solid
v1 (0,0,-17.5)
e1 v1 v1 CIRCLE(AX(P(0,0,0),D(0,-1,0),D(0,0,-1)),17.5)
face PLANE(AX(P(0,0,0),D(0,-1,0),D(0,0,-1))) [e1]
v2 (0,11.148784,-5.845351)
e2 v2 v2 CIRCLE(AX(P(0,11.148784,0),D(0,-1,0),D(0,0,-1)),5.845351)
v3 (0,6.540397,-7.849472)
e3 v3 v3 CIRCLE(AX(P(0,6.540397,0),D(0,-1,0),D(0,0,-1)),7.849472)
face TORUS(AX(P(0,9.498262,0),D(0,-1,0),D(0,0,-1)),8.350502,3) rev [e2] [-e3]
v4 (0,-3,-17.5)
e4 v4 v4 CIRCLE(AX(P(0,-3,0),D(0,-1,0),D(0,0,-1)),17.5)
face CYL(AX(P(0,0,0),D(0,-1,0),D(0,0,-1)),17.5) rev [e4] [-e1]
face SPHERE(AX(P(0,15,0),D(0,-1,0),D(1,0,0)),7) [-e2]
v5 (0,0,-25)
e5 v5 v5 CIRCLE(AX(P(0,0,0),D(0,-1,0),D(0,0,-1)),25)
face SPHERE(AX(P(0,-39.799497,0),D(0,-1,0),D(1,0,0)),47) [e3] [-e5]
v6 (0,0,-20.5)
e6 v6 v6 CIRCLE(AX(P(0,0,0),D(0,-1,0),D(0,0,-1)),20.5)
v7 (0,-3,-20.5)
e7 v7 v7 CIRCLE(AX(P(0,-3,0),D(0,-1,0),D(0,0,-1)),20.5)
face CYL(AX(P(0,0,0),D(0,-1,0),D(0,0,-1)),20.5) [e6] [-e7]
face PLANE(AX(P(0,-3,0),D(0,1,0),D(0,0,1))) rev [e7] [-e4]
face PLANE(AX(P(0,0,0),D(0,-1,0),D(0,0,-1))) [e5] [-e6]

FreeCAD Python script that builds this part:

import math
import FreeCAD as App
import Part
import Sketcher

V = App.Vector

doc = App.newDocument("Part")
body = doc.addObject("PartDesign::Body", "Body")

# Sketch on XY plane
sketch1 = body.newObject("Sketcher::SketchObject", "Sketch")
sketch1.AttachmentSupport = (doc.getObject("XY_Plane"), [""])
sketch1.MapMode = "FlatFace"
sketch1.addGeometry(Part.LineSegment(V(0, 22, 0), V(0, 0, 0)), False)
sketch1.addGeometry(Part.LineSegment(V(0, 0, 0), V(17.5, 0, 0)), False)
sketch1.addGeometry(Part.LineSegment(V(17.5, 0, 0), V(17.5, -3, 0)), False)
sketch1.addGeometry(Part.LineSegment(V(17.5, -3, 0), V(20.5, -3, 0)), False)
sketch1.addGeometry(Part.LineSegment(V(20.5, -3, 0), V(20.5, 0, 0)), False)
sketch1.addGeometry(Part.LineSegment(V(20.5, 0, 0), V(25, 0, 0)), False)
sketch1.addGeometry(Part.ArcOfCircle(Part.Circle(V(0, -39.799497, 0), V(0, 0, 1), 47), math.radians(57.865072), math.radians(80.385978)), False)
sketch1.addGeometry(Part.ArcOfCircle(Part.Circle(V(8.350502, 9.498262, 0), V(0, 0, 1), 3), math.radians(146.621065), math.radians(260.385978)), False)
sketch1.addGeometry(Part.ArcOfCircle(Part.Circle(V(0, 15, 0), V(0, 0, 1), 7), math.radians(-33.378935), math.radians(90)), False)
sketch1.addConstraint(Sketcher.Constraint("Coincident", 0, 2, 1, 1))
sketch1.addConstraint(Sketcher.Constraint("Coincident", 1, 2, 2, 1))
sketch1.addConstraint(Sketcher.Constraint("Coincident", 2, 2, 3, 1))
sketch1.addConstraint(Sketcher.Constraint("Coincident", 3, 2, 4, 1))
sketch1.addConstraint(Sketcher.Constraint("Coincident", 4, 2, 5, 1))
sketch1.addConstraint(Sketcher.Constraint("Coincident", 5, 2, 6, 1))
sketch1.addConstraint(Sketcher.Constraint("Tangent", 6, 2, 7, 2))
sketch1.addConstraint(Sketcher.Constraint("Tangent", 7, 1, 8, 1))
sketch1.addConstraint(Sketcher.Constraint("Coincident", 8, 2, 0, 1))
sketch1.addConstraint(Sketcher.Constraint("Vertical", 0))
sketch1.addConstraint(Sketcher.Constraint("Horizontal", 1))
sketch1.addConstraint(Sketcher.Constraint("Vertical", 2))
sketch1.addConstraint(Sketcher.Constraint("Horizontal", 3))
sketch1.addConstraint(Sketcher.Constraint("Vertical", 4))
sketch1.addConstraint(Sketcher.Constraint("Horizontal", 5))
sketch1.addConstraint(Sketcher.Constraint("Coincident", 0, 2, -1, 1))
sketch1.addConstraint(Sketcher.Constraint("PointOnObject", 6, 3, -2))
sketch1.addConstraint(Sketcher.Constraint("PointOnObject", 8, 3, -2))
sketch1.addConstraint(Sketcher.Constraint("PointOnObject", 4, 2, -1))
sketch1.addConstraint(Sketcher.Constraint("Equal", 3, 2))
sketch1.addConstraint(Sketcher.Constraint("Radius", 6, 47.0))
sketch1.addConstraint(Sketcher.Constraint("Radius", 7, 3.0))
sketch1.addConstraint(Sketcher.Constraint("Radius", 8, 7.0))
sketch1.addConstraint(Sketcher.Constraint("DistanceX", 3, 1, 3, 2, 3.0))
sketch1.addConstraint(Sketcher.Constraint("DistanceY", 0, 2, 0, 1, 22.0))
sketch1.addConstraint(Sketcher.Constraint("DistanceX", 1, 1, 1, 2, 17.5))
sketch1.addConstraint(Sketcher.Constraint("DistanceX", 5, 1, 5, 2, 4.5))
revolution = body.newObject("PartDesign::Revolution", "Revolution")
revolution.Profile = sketch1
revolution.ReferenceAxis = (sketch1, ["V_Axis"])
revolution.Angle = 360

doc.recompute()
